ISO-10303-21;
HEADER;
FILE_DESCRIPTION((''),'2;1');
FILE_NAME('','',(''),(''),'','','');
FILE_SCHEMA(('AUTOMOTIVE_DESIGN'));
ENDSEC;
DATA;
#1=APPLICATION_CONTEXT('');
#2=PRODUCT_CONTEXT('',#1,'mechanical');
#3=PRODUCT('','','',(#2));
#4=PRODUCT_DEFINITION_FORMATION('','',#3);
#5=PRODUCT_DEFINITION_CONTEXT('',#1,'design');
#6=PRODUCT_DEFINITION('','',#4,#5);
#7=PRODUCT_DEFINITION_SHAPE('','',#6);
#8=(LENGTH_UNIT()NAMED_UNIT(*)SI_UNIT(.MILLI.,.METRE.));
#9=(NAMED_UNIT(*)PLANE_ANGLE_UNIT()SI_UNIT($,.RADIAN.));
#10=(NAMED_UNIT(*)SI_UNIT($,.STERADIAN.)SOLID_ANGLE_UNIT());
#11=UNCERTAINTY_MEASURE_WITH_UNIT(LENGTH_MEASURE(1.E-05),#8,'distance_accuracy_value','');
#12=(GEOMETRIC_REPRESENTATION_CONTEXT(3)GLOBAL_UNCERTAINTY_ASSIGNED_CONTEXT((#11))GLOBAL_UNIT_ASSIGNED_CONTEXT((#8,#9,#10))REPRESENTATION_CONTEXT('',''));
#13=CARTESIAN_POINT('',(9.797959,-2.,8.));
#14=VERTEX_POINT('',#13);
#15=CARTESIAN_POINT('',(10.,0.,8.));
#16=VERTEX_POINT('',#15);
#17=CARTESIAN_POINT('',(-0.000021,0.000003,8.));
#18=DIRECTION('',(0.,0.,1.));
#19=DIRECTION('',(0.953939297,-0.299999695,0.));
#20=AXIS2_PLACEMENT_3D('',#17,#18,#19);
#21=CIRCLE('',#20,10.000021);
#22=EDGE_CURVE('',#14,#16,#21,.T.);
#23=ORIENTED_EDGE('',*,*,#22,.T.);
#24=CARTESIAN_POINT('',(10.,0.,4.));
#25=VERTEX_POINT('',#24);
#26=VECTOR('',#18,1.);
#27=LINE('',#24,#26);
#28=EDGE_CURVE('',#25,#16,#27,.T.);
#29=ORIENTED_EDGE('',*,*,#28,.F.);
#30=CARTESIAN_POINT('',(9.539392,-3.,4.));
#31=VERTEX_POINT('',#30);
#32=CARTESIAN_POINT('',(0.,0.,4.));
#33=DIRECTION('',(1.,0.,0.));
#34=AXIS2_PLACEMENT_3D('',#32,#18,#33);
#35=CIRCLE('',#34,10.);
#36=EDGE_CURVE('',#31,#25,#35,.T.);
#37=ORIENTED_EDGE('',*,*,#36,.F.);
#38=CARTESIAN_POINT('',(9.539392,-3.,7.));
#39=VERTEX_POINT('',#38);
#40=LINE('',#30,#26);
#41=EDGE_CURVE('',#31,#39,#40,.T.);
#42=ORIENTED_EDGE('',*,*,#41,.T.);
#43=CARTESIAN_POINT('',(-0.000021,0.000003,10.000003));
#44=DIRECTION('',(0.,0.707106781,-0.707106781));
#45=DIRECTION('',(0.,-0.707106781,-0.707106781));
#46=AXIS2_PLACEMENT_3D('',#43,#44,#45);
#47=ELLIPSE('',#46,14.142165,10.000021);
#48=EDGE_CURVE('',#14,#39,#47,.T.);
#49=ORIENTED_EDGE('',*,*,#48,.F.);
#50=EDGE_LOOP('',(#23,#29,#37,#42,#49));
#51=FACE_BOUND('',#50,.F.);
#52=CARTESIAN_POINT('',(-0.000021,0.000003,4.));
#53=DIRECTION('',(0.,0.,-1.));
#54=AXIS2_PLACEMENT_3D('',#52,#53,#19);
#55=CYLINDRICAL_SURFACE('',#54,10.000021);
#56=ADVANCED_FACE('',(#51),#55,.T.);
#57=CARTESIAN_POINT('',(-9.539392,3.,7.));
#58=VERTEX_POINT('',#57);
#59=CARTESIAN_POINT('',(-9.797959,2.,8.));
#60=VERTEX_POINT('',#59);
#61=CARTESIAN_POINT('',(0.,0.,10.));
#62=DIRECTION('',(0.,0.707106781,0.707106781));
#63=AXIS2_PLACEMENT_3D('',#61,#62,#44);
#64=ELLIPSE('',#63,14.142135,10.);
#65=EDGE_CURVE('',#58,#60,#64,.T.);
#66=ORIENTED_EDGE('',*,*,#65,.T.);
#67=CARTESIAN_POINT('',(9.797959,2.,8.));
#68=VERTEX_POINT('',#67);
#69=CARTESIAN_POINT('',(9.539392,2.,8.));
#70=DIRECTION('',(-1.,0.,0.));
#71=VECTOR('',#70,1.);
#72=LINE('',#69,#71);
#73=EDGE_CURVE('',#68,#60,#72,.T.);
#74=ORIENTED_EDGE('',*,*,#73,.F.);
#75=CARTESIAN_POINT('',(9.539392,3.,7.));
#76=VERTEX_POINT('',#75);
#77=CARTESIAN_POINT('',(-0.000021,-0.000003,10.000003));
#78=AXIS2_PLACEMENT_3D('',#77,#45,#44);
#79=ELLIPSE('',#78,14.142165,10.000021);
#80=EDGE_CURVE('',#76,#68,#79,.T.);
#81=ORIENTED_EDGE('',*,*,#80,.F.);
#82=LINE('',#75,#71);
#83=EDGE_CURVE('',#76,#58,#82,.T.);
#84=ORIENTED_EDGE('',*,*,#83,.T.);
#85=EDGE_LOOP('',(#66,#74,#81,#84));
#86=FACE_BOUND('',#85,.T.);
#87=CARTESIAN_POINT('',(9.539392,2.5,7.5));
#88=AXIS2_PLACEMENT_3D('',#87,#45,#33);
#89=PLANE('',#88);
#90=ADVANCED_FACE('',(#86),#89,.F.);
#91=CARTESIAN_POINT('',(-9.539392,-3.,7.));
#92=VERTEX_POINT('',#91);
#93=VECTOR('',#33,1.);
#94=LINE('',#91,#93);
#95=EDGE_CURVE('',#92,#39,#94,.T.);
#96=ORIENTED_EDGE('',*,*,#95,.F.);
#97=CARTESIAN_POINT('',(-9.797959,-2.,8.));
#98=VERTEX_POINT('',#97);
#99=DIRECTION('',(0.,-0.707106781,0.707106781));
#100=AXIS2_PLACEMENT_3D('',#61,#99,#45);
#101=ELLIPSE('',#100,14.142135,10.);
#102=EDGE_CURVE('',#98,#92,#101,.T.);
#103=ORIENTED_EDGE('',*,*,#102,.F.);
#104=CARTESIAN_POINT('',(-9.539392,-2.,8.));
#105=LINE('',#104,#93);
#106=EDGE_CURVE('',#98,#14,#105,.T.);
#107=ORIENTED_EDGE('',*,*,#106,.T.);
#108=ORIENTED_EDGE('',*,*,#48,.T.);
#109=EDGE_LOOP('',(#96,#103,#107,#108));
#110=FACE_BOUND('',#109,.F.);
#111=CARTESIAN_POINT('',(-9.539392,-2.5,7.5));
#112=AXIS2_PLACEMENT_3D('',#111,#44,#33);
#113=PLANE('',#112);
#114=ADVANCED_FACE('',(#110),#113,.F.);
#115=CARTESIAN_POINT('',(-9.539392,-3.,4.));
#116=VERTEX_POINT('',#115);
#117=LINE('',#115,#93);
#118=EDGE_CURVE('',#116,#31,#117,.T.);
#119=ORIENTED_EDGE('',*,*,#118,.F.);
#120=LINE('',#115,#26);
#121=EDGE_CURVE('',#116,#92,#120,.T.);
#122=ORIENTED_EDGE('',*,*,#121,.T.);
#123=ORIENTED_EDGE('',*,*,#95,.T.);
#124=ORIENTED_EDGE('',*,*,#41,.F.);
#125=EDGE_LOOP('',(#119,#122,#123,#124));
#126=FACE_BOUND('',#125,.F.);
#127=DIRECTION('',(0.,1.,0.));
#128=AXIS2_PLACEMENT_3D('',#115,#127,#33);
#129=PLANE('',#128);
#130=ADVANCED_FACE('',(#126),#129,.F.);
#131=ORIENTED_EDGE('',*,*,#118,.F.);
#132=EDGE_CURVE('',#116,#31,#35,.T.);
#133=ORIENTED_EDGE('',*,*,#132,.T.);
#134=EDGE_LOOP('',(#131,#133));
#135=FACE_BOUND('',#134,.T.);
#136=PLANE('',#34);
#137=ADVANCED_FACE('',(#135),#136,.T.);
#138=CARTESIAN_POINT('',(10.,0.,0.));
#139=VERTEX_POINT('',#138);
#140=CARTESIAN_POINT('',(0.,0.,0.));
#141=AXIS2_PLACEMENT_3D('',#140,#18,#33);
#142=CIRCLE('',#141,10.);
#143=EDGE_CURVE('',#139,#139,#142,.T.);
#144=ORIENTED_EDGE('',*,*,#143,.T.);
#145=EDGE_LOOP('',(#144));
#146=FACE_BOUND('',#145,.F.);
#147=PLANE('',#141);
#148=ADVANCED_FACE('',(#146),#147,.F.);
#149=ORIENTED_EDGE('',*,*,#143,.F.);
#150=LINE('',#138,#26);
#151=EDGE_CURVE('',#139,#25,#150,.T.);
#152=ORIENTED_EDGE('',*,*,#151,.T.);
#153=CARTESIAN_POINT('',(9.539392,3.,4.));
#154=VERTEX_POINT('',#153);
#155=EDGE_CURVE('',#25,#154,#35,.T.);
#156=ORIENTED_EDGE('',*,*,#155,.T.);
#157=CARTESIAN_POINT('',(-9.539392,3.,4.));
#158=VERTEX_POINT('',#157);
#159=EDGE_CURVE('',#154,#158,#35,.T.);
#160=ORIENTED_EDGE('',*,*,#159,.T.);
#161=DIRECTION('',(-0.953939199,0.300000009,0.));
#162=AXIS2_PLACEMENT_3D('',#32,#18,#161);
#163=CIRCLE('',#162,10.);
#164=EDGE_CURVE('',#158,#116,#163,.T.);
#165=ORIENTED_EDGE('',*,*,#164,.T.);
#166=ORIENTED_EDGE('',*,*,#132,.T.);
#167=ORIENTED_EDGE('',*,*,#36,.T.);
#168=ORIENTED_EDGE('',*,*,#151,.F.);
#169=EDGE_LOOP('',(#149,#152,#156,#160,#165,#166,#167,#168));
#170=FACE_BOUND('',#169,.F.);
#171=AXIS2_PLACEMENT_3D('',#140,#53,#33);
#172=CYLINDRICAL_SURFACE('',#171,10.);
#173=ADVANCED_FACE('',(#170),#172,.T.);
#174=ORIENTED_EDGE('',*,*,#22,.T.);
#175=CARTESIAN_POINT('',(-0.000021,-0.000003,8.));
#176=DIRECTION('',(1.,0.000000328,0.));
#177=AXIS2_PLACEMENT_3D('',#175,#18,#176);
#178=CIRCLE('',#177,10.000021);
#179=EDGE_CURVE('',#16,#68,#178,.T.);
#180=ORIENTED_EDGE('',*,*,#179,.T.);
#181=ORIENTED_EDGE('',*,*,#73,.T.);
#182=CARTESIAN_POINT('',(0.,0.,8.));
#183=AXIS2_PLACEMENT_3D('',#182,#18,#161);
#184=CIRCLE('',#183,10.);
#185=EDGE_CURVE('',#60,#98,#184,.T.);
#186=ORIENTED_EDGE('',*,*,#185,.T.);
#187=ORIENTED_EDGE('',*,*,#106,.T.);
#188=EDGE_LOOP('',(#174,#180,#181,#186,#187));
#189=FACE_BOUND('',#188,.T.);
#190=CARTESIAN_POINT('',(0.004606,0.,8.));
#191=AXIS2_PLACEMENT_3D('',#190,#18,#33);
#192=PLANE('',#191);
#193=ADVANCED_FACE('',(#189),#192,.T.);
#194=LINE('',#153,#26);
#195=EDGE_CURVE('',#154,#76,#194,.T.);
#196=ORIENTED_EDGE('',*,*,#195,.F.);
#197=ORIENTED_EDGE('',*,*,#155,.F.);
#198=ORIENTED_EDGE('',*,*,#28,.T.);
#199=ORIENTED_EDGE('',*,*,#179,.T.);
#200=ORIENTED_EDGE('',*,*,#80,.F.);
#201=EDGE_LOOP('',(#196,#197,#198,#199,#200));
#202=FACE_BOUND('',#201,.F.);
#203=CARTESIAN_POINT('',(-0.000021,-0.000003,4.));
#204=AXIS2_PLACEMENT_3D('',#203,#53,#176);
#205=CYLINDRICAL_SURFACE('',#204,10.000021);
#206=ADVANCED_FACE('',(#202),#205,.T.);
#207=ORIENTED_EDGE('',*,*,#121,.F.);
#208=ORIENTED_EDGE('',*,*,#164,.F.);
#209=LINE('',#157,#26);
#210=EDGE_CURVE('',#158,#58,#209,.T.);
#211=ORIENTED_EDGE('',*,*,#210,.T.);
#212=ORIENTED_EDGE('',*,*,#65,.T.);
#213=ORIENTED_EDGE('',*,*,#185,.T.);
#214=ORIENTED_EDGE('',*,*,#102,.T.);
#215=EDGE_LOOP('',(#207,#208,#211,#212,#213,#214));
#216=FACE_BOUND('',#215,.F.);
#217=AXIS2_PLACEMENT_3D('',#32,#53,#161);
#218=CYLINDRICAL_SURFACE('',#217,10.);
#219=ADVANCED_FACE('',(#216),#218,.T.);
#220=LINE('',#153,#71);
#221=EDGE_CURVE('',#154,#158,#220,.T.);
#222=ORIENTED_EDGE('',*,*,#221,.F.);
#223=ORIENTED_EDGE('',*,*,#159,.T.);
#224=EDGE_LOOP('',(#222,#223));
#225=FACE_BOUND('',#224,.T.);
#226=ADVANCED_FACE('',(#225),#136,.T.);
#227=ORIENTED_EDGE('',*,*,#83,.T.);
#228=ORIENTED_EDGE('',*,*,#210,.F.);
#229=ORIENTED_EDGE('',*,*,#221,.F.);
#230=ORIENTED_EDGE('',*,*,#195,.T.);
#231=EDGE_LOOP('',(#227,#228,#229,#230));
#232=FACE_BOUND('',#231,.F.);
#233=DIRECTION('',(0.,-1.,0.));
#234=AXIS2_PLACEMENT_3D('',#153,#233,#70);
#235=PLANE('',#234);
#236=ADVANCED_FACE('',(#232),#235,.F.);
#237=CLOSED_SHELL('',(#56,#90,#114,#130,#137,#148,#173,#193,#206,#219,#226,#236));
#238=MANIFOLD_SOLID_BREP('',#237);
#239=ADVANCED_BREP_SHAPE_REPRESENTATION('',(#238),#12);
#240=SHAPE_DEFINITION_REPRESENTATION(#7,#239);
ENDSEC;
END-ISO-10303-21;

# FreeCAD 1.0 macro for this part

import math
import FreeCAD as App
import Part
import Sketcher

V = App.Vector
Q = App.Units.Quantity


def edges_at(feature, points):
    """Names of the edges that pass closest to the given points."""
    edges = feature.Shape.Edges
    near = lambda p: min(range(len(edges)), key=lambda i: edges[i].distToShape(Part.Vertex(*p))[0])
    return sorted({f"Edge{near(p) + 1}" for p in points})

doc = App.newDocument("Part")
body = doc.addObject("PartDesign::Body", "Body")

sketch1 = body.newObject("Sketcher::SketchObject", "Sketch")
sketch1.AttachmentSupport = (doc.getObject("XY_Plane"), [""])
sketch1.MapMode = "FlatFace"
sketch1.addGeometry(Part.Circle(V(0, 0, 0), V(0, 0, 1), 10), False)
sketch1.addConstraint(Sketcher.Constraint("Coincident", 0, 3, -1, 1))
sketch1.addConstraint(Sketcher.Constraint("Diameter", 0, Q("20 mm")))
pad1 = body.newObject("PartDesign::Pad", "Pad")
pad1.Profile = sketch1
pad1.Length = 4

sketch2 = body.newObject("Sketcher::SketchObject", "Sketch001")
sketch2.AttachmentSupport = (doc.getObject("XY_Plane"), [""])
sketch2.MapMode = "FlatFace"
sketch2.AttachmentOffset = App.Placement(V(0, 0, 4), App.Rotation())
sketch2.addGeometry(Part.LineSegment(V(9.539392, 3, 0), V(-9.539392, 3, 0)), False)
sketch2.addGeometry(Part.ArcOfCircle(Part.Circle(V(0, 0, 0), V(0, 0, 1), 10), math.radians(162.542396), math.radians(197.457604)), False)
sketch2.addGeometry(Part.LineSegment(V(-9.539392, -3, 0), V(9.539392, -3, 0)), False)
sketch2.addGeometry(Part.ArcOfCircle(Part.Circle(V(-0.000021, 0.000003, 0), V(0, 0, 1), 10.000021), math.radians(-17.457585), math.radians(-0.000019)), False)
sketch2.addGeometry(Part.ArcOfCircle(Part.Circle(V(-0.000021, -0.000003, 0), V(0, 0, 1), 10.000021), math.radians(0.000019), math.radians(17.457585)), False)
sketch2.addConstraint(Sketcher.Constraint("Coincident", 0, 2, 1, 1))
sketch2.addConstraint(Sketcher.Constraint("Coincident", 1, 2, 2, 1))
sketch2.addConstraint(Sketcher.Constraint("Coincident", 2, 2, 3, 1))
sketch2.addConstraint(Sketcher.Constraint("Coincident", 3, 2, 4, 1))
sketch2.addConstraint(Sketcher.Constraint("Coincident", 4, 2, 0, 1))
sketch2.addConstraint(Sketcher.Constraint("Horizontal", 0))
sketch2.addConstraint(Sketcher.Constraint("Horizontal", 2))
sketch2.addConstraint(Sketcher.Constraint("Coincident", 1, 3, -1, 1))
sketch2.addConstraint(Sketcher.Constraint("Coincident", 4, 3, 3, 3))
sketch2.addConstraint(Sketcher.Constraint("PointOnObject", 3, 2, -1))
sketch2.addConstraint(Sketcher.Constraint("Radius", 1, Q("10 mm")))
sketch2.addConstraint(Sketcher.Constraint("DistanceY", -1, 1, 0, 2, Q("3 mm")))
sketch2.addConstraint(Sketcher.Constraint("DistanceY", 1, 2, -1, 1, Q("3 mm")))
sketch2.addConstraint(Sketcher.Constraint("DistanceX", -1, 1, 3, 2, Q("10 mm")))
sketch2.addConstraint(Sketcher.Constraint("Radius", 3, Q("10.000021 mm")))
sketch2.addConstraint(Sketcher.Constraint("DistanceX", 0, 2, 0, 1, Q("19.078784 mm")))
pad2 = body.newObject("PartDesign::Pad", "Pad001")
pad2.Profile = sketch2
pad2.Length = 4
doc.recompute()

chamfer = body.newObject("PartDesign::Chamfer", "Chamfer")
chamfer.Base = (pad2, edges_at(pad2, [(0, -3, 8), (0, 3, 8)]))
chamfer.Size = 1

doc.recompute()
